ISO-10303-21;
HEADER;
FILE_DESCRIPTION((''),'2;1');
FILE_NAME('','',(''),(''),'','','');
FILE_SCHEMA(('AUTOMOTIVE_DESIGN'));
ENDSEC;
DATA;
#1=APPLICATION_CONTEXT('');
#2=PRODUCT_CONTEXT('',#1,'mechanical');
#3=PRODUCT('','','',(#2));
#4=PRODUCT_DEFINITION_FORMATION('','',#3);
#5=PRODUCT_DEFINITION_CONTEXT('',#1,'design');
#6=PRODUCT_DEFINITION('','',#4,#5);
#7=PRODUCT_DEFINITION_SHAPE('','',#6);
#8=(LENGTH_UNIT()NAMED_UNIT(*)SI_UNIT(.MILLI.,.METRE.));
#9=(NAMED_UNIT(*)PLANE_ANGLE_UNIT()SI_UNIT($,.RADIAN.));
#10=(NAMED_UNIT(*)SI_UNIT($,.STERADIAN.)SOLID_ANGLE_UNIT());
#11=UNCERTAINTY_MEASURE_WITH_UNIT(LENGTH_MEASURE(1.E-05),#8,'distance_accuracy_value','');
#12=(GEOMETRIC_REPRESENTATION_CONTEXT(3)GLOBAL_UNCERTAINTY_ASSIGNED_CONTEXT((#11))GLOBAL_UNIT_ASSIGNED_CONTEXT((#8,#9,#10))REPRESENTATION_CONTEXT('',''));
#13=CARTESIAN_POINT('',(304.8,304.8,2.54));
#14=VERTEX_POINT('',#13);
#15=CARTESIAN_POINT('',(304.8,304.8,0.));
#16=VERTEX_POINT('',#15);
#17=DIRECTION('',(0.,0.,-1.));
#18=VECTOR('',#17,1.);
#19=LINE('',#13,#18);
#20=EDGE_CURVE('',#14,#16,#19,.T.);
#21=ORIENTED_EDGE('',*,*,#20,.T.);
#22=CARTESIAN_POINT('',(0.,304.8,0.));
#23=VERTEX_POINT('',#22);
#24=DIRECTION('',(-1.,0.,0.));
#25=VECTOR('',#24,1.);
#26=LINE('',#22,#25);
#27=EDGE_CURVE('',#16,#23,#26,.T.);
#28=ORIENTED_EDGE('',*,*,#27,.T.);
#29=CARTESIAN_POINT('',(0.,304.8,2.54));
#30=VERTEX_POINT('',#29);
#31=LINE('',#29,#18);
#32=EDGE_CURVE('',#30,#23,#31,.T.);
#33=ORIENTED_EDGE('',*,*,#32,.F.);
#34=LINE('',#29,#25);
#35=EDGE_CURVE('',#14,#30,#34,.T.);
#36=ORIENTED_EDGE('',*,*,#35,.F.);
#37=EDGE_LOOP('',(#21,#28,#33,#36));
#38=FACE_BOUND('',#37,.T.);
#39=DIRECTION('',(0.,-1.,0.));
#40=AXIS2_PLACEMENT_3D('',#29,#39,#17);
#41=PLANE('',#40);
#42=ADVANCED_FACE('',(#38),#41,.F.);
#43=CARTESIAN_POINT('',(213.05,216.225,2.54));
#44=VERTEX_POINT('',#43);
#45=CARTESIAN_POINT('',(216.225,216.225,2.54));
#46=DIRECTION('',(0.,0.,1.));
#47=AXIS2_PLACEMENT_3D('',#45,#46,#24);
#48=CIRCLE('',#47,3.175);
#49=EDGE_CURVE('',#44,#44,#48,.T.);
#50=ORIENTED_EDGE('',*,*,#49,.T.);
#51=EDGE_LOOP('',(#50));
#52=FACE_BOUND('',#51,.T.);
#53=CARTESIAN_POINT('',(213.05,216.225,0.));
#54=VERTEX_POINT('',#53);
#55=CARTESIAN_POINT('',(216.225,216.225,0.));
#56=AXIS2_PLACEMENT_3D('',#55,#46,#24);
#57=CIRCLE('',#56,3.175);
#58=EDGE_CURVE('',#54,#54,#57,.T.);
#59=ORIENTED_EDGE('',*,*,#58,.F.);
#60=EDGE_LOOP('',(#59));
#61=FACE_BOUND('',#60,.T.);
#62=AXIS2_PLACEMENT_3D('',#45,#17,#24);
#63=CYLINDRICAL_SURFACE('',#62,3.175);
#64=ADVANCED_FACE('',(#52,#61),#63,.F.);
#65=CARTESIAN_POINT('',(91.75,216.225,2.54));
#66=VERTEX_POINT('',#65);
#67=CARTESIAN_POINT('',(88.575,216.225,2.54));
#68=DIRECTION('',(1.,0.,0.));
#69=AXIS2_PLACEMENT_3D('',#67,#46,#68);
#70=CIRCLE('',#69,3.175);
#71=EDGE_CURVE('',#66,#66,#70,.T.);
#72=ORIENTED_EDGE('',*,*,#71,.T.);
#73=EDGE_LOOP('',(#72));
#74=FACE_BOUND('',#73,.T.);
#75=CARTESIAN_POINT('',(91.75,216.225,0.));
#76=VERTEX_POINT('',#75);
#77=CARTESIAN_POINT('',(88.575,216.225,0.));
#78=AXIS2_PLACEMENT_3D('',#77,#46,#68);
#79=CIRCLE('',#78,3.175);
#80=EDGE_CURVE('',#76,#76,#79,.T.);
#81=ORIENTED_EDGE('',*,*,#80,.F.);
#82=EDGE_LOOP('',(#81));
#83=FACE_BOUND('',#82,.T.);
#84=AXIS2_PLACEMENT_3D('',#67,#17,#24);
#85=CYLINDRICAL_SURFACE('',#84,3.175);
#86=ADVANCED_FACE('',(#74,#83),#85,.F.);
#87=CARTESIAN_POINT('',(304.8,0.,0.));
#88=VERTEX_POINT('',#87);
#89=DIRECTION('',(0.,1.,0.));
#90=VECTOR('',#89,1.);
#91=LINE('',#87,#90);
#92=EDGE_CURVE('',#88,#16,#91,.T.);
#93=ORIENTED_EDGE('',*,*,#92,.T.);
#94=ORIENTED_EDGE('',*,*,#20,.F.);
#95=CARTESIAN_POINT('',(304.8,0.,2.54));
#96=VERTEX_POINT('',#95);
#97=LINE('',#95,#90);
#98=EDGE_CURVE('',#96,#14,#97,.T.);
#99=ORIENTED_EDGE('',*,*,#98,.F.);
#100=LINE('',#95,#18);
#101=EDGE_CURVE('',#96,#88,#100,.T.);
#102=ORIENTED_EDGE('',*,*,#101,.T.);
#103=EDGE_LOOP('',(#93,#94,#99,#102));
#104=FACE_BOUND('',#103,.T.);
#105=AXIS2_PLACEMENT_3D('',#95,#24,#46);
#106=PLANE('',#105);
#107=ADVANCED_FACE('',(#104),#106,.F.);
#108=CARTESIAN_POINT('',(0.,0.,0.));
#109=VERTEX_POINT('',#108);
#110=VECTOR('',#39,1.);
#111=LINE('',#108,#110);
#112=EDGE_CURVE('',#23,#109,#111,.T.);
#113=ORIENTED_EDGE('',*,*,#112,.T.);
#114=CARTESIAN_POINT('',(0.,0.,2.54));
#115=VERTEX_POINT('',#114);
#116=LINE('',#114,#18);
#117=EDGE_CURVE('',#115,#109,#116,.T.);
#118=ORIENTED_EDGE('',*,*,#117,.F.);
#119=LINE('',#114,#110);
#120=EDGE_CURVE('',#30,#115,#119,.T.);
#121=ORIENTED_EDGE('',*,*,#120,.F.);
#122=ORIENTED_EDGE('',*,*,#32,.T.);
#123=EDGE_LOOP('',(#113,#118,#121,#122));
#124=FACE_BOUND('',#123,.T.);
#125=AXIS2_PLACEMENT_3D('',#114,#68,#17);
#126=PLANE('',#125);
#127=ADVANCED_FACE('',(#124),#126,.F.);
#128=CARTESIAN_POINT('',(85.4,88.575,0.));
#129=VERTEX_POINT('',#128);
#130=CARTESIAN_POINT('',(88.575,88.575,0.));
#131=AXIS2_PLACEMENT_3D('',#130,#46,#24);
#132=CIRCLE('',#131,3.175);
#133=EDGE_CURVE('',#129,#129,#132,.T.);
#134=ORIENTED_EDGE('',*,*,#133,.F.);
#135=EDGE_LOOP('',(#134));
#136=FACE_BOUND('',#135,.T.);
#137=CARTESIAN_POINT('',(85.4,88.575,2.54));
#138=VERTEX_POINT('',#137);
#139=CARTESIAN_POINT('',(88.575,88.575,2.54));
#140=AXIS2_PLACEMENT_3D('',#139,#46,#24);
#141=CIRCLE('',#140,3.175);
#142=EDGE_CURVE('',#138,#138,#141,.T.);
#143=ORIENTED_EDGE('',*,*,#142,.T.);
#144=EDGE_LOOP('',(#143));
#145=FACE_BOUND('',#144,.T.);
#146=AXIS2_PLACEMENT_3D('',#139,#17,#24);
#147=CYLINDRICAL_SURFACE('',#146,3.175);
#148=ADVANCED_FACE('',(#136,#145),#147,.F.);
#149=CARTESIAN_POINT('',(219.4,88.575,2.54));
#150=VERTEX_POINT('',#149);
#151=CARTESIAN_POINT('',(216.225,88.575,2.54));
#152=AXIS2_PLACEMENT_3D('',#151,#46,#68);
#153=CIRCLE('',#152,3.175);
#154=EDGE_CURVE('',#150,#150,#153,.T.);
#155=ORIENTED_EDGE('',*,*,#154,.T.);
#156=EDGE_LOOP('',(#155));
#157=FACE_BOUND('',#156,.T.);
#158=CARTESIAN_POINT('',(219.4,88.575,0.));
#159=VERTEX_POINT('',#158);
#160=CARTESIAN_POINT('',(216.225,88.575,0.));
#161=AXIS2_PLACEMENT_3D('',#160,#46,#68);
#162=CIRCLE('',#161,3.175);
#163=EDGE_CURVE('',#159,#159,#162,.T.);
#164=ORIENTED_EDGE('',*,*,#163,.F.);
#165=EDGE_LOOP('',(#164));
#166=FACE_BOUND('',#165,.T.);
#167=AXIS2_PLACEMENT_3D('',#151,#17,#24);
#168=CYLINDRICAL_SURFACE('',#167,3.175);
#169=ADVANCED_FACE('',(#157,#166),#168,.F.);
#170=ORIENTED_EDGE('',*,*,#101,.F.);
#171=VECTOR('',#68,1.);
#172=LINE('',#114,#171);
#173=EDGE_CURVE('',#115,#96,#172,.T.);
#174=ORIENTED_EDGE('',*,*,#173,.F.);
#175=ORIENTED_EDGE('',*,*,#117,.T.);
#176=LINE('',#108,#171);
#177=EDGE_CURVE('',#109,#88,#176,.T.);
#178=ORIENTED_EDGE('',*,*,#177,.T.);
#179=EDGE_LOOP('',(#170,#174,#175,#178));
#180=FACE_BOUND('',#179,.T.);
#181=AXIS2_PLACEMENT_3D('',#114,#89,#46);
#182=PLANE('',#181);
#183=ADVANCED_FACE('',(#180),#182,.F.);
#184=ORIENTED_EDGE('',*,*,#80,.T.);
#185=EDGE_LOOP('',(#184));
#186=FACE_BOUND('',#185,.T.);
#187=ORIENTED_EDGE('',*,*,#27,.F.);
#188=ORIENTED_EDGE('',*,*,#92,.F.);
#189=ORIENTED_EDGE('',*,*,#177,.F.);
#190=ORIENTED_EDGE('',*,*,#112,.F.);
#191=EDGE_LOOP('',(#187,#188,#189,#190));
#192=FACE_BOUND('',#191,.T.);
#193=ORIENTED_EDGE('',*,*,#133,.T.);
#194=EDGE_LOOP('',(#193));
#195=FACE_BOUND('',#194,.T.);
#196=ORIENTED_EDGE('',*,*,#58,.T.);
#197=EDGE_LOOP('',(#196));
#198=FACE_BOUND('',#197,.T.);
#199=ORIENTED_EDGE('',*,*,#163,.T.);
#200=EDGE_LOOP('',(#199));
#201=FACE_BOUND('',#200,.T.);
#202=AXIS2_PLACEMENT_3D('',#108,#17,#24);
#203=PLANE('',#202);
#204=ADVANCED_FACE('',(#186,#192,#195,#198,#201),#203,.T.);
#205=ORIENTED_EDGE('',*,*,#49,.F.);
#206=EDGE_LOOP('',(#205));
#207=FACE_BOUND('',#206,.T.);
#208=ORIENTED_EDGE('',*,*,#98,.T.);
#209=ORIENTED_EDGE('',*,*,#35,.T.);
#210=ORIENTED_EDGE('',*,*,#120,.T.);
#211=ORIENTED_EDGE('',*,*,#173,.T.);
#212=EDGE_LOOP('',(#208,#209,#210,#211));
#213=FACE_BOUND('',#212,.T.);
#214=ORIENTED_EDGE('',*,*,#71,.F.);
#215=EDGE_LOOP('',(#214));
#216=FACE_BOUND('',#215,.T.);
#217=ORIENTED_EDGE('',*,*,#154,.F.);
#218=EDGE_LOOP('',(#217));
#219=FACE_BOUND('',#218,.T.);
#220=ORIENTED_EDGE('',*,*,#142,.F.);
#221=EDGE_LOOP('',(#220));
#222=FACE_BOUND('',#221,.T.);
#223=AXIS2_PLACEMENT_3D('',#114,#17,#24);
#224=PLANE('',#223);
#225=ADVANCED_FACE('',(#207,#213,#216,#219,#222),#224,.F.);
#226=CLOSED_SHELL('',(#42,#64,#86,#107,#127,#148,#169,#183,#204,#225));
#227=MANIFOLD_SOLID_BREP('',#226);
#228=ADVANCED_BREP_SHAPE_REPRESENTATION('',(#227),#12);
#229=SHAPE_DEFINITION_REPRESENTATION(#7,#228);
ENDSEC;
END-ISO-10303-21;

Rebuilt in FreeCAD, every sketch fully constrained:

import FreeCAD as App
import Part
import Sketcher
from FreeCAD import Vector
Q = App.Units.Quantity


def add_polygon(sketch, points):
    """Adds a closed chain of lines whose ends are joined by coincident constraints."""
    first, n = sketch.GeometryCount, len(points)
    for a, b in zip(points, points[1:] + points[:1]):
        sketch.addGeometry(Part.LineSegment(App.Vector(*a, 0), App.Vector(*b, 0)), False)
    for i in range(n):
        sketch.addConstraint(Sketcher.Constraint("Coincident", first + i, 2, first + (i + 1) % n, 1))

doc = App.newDocument("Part")
body = doc.addObject("PartDesign::Body", "Body")

# Sketch on XY plane
sketch1 = doc.addObject("Sketcher::SketchObject", "Sketch")
body.addObject(sketch1)
sketch1.AttachmentSupport = (doc.XY_Plane, [""])
sketch1.MapMode = "FlatFace"
add_polygon(sketch1, [(0, 304.8), (0, 0), (304.8, 0), (304.8, 304.8)])  # lines 0-3
sketch1.addGeometry(Part.Circle(Vector(88.6, 88.6, 0), Vector(0, 0, 1), 3.2), False)  # 4
sketch1.addGeometry(Part.Circle(Vector(216.2, 88.6, 0), Vector(0, 0, 1), 3.2), False)  # 5
sketch1.addGeometry(Part.Circle(Vector(88.6, 216.2, 0), Vector(0, 0, 1), 3.2), False)  # 6
sketch1.addGeometry(Part.Circle(Vector(216.2, 216.2, 0), Vector(0, 0, 1), 3.2), False)  # 7
sketch1.addConstraint([
    Sketcher.Constraint("Vertical", 0),
    Sketcher.Constraint("Horizontal", 1),
    Sketcher.Constraint("Vertical", 2),
    Sketcher.Constraint("Horizontal", 3),
    Sketcher.Constraint("Coincident", 0, 2, -1, 1),
    Sketcher.Constraint("Equal", 4, 5),
    Sketcher.Constraint("Equal", 5, 6),
    Sketcher.Constraint("Equal", 6, 7),
    Sketcher.Constraint("Horizontal", 4, 3, 5, 3),
    Sketcher.Constraint("Horizontal", 6, 3, 7, 3),
    Sketcher.Constraint("Vertical", 4, 3, 6, 3),
    Sketcher.Constraint("Vertical", 5, 3, 7, 3),
    Sketcher.Constraint("Equal", 3, 0),
    Sketcher.Constraint("Diameter", 4, Q("0.25 in")),
    Sketcher.Constraint("DistanceX", 1, 1, 1, 2, Q("12 in")),
    Sketcher.Constraint("DistanceX", -1, 1, 4, 3, Q("88.575 mm")),
    Sketcher.Constraint("DistanceY", -1, 1, 4, 3, Q("88.575 mm")),
    Sketcher.Constraint("DistanceX", -1, 1, 5, 3, Q("216.225 mm")),
    Sketcher.Constraint("DistanceY", -1, 1, 6, 3, Q("216.225 mm")),
])
pad1 = doc.addObject("PartDesign::Pad", "Pad")
body.addObject(pad1)
pad1.Profile = sketch1
pad1.Length = Q("0.1 in")

doc.recompute()
